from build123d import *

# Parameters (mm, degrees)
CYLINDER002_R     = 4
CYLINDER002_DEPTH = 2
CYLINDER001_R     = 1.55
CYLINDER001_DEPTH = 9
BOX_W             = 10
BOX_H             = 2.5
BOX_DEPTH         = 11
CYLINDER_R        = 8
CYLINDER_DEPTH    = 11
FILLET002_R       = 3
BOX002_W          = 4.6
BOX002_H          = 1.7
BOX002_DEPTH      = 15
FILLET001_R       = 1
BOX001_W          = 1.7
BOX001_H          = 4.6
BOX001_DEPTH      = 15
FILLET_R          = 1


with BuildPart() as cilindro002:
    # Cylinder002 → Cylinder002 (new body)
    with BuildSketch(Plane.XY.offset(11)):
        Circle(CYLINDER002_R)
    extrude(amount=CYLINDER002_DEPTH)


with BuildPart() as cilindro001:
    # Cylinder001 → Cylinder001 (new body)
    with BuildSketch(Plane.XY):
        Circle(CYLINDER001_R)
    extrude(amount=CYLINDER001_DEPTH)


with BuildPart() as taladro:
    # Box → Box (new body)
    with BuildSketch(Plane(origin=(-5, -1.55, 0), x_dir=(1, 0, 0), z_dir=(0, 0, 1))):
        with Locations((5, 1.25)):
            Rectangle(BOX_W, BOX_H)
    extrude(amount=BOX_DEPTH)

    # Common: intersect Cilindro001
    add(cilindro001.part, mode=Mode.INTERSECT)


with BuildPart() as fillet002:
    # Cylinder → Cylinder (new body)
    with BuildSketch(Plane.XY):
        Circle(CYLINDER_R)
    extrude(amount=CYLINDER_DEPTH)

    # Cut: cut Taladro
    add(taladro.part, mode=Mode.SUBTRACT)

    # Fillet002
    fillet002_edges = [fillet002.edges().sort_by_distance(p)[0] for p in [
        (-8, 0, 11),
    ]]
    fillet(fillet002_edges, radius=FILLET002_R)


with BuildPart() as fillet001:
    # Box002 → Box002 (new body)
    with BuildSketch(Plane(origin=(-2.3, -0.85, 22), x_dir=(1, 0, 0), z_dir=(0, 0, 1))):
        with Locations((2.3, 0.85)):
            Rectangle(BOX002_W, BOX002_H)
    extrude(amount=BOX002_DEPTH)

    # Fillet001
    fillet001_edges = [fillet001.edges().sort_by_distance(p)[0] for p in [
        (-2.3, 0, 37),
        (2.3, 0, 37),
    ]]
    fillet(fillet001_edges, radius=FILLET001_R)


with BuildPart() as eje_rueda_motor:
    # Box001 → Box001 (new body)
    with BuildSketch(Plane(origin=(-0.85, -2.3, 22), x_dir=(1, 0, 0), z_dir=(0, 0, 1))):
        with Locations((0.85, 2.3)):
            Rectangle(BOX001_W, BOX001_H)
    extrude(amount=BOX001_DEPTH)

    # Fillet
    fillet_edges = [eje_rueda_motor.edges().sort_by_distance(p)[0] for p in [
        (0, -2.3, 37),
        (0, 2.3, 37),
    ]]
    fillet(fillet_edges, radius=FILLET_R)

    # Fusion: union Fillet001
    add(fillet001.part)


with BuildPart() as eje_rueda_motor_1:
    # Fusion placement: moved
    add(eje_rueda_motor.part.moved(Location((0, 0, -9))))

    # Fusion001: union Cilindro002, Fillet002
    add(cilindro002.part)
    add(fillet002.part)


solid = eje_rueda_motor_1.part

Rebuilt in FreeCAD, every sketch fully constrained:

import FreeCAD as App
import Part
import Sketcher
from FreeCAD import Vector
Q = App.Units.Quantity


def edges_at(feature, points):
    """Names of the edges that pass closest to the given points."""
    edges = feature.Shape.Edges
    near = lambda p: min(range(len(edges)), key=lambda i: edges[i].distToShape(Part.Vertex(*p))[0])
    return sorted({f"Edge{near(p) + 1}" for p in points})

doc = App.newDocument("Part")
body = doc.addObject("PartDesign::Body", "Body")

# Sketch on XY plane
sketch1 = body.newObject("Sketcher::SketchObject", "Sketch")
sketch1.AttachmentSupport = (doc.getObject("XY_Plane"), [""])
sketch1.MapMode = "FlatFace"
sketch1.AttachmentOffset = App.Placement(Vector(0, 0, 11), App.Rotation())
sketch1.addGeometry(Part.Circle(Vector(0, 0, 0), Vector(0, 0, 1), 4), False)
sketch1.addConstraint(Sketcher.Constraint("Coincident", 0, 3, -1, 1))
sketch1.addConstraint(Sketcher.Constraint("Diameter", 0, Q("8 mm")))
pad1 = body.newObject("PartDesign::Pad", "Pad")
pad1.Profile = sketch1
pad1.Length = 2
body2 = doc.addObject("PartDesign::Body", "Body001")

# Sketch on XY plane
sketch2 = body2.newObject("Sketcher::SketchObject", "Sketch001")
sketch2.AttachmentSupport = (doc.getObject("XY_Plane001"), [""])
sketch2.MapMode = "FlatFace"
sketch2.addGeometry(Part.Circle(Vector(0, 0, 0), Vector(0, 0, 1), 1.6), False)
sketch2.addConstraint(Sketcher.Constraint("Coincident", 0, 3, -1, 1))
sketch2.addConstraint(Sketcher.Constraint("Diameter", 0, Q("3.1 mm")))
pad2 = body2.newObject("PartDesign::Pad", "Pad001")
pad2.Profile = sketch2
pad2.Length = 9
body3 = doc.addObject("PartDesign::Body", "Body002")

# Sketch on XY plane
sketch3 = body3.newObject("Sketcher::SketchObject", "Sketch002")
sketch3.AttachmentSupport = (doc.getObject("XY_Plane002"), [""])
sketch3.MapMode = "FlatFace"
sketch3.addGeometry(Part.LineSegment(Vector(-5, 0.9, 0), Vector(-5, -1.6, 0)), False)
sketch3.addGeometry(Part.LineSegment(Vector(-5, -1.6, 0), Vector(5, -1.6, 0)), False)
sketch3.addGeometry(Part.LineSegment(Vector(5, -1.6, 0), Vector(5, 0.9, 0)), False)
sketch3.addGeometry(Part.LineSegment(Vector(5, 0.9, 0), Vector(-5, 0.9, 0)), False)
sketch3.addConstraint(Sketcher.Constraint("Coincident", 0, 2, 1, 1))
sketch3.addConstraint(Sketcher.Constraint("Coincident", 1, 2, 2, 1))
sketch3.addConstraint(Sketcher.Constraint("Coincident", 2, 2, 3, 1))
sketch3.addConstraint(Sketcher.Constraint("Coincident", 3, 2, 0, 1))
sketch3.addConstraint(Sketcher.Constraint("Vertical", 0))
sketch3.addConstraint(Sketcher.Constraint("Horizontal", 1))
sketch3.addConstraint(Sketcher.Constraint("Vertical", 2))
sketch3.addConstraint(Sketcher.Constraint("Horizontal", 3))
sketch3.addConstraint(Sketcher.Constraint("DistanceX", 1, 1, 1, 2, Q("10 mm")))
sketch3.addConstraint(Sketcher.Constraint("DistanceY", 0, 2, 0, 1, Q("2.5 mm")))
sketch3.addConstraint(Sketcher.Constraint("DistanceX", 0, 2, -1, 1, Q("5 mm")))
sketch3.addConstraint(Sketcher.Constraint("DistanceY", 0, 2, -1, 1, Q("1.55 mm")))
pad3 = body3.newObject("PartDesign::Pad", "Pad002")
pad3.Profile = sketch3
pad3.Length = 11
doc.recompute()

boolean = body3.newObject("PartDesign::Boolean", "Boolean")
boolean.Type = "Common"
boolean.addObjects([body2])
body4 = doc.addObject("PartDesign::Body", "Body003")

# Sketch on XY plane
sketch4 = body4.newObject("Sketcher::SketchObject", "Sketch003")
sketch4.AttachmentSupport = (doc.getObject("XY_Plane003"), [""])
sketch4.MapMode = "FlatFace"
sketch4.addGeometry(Part.Circle(Vector(0, 0, 0), Vector(0, 0, 1), 8), False)
sketch4.addConstraint(Sketcher.Constraint("Coincident", 0, 3, -1, 1))
sketch4.addConstraint(Sketcher.Constraint("Diameter", 0, Q("16 mm")))
pad4 = body4.newObject("PartDesign::Pad", "Pad003")
pad4.Profile = sketch4
pad4.Length = 11
doc.recompute()

boolean2 = body4.newObject("PartDesign::Boolean", "Boolean001")
boolean2.Type = "Cut"
boolean2.addObjects([body3])
doc.recompute()

fillet = body4.newObject("PartDesign::Fillet", "Fillet")
fillet.Base = (boolean2, edges_at(boolean2, [(-8, 0, 11)]))
fillet.Radius = 3
body5 = doc.addObject("PartDesign::Body", "Body004")

# Sketch on XY plane
sketch5 = body5.newObject("Sketcher::SketchObject", "Sketch004")
sketch5.AttachmentSupport = (doc.getObject("XY_Plane004"), [""])
sketch5.MapMode = "FlatFace"
sketch5.AttachmentOffset = App.Placement(Vector(0, 0, 22), App.Rotation())
sketch5.addGeometry(Part.LineSegment(Vector(-2.3, 0.8, 0), Vector(-2.3, -0.8, 0)), False)
sketch5.addGeometry(Part.LineSegment(Vector(-2.3, -0.8, 0), Vector(2.3, -0.8, 0)), False)
sketch5.addGeometry(Part.LineSegment(Vector(2.3, -0.8, 0), Vector(2.3, 0.8, 0)), False)
sketch5.addGeometry(Part.LineSegment(Vector(2.3, 0.8, 0), Vector(-2.3, 0.8, 0)), False)
sketch5.addConstraint(Sketcher.Constraint("Coincident", 0, 2, 1, 1))
sketch5.addConstraint(Sketcher.Constraint("Coincident", 1, 2, 2, 1))
sketch5.addConstraint(Sketcher.Constraint("Coincident", 2, 2, 3, 1))
sketch5.addConstraint(Sketcher.Constraint("Coincident", 3, 2, 0, 1))
sketch5.addConstraint(Sketcher.Constraint("Vertical", 0))
sketch5.addConstraint(Sketcher.Constraint("Horizontal", 1))
sketch5.addConstraint(Sketcher.Constraint("Vertical", 2))
sketch5.addConstraint(Sketcher.Constraint("Horizontal", 3))
sketch5.addConstraint(Sketcher.Constraint("Symmetric", 0, 2, 2, 2, -1, 1))
sketch5.addConstraint(Sketcher.Constraint("DistanceX", 1, 1, 1, 2, Q("4.6 mm")))
sketch5.addConstraint(Sketcher.Constraint("DistanceY", 0, 2, 0, 1, Q("1.7 mm")))
pad5 = body5.newObject("PartDesign::Pad", "Pad004")
pad5.Profile = sketch5
pad5.Length = 15
doc.recompute()

fillet2 = body5.newObject("PartDesign::Fillet", "Fillet001")
fillet2.Base = (pad5, edges_at(pad5, [(-2.3, 0, 37), (2.3, 0, 37)]))
fillet2.Radius = 1
body6 = doc.addObject("PartDesign::Body", "Body005")

# Sketch on XY plane
sketch6 = body6.newObject("Sketcher::SketchObject", "Sketch005")
sketch6.AttachmentSupport = (doc.getObject("XY_Plane005"), [""])
sketch6.MapMode = "FlatFace"
sketch6.AttachmentOffset = App.Placement(Vector(0, 0, 22), App.Rotation())
sketch6.addGeometry(Part.LineSegment(Vector(-0.8, 2.3, 0), Vector(-0.8, -2.3, 0)), False)
sketch6.addGeometry(Part.LineSegment(Vector(-0.8, -2.3, 0), Vector(0.8, -2.3, 0)), False)
sketch6.addGeometry(Part.LineSegment(Vector(0.8, -2.3, 0), Vector(0.8, 2.3, 0)), False)
sketch6.addGeometry(Part.LineSegment(Vector(0.8, 2.3, 0), Vector(-0.8, 2.3, 0)), False)
sketch6.addConstraint(Sketcher.Constraint("Coincident", 0, 2, 1, 1))
sketch6.addConstraint(Sketcher.Constraint("Coincident", 1, 2, 2, 1))
sketch6.addConstraint(Sketcher.Constraint("Coincident", 2, 2, 3, 1))
sketch6.addConstraint(Sketcher.Constraint("Coincident", 3, 2, 0, 1))
sketch6.addConstraint(Sketcher.Constraint("Vertical", 0))
sketch6.addConstraint(Sketcher.Constraint("Horizontal", 1))
sketch6.addConstraint(Sketcher.Constraint("Vertical", 2))
sketch6.addConstraint(Sketcher.Constraint("Horizontal", 3))
sketch6.addConstraint(Sketcher.Constraint("Symmetric", 0, 2, 2, 2, -1, 1))
sketch6.addConstraint(Sketcher.Constraint("DistanceX", 1, 1, 1, 2, Q("1.7 mm")))
sketch6.addConstraint(Sketcher.Constraint("DistanceY", 0, 2, 0, 1, Q("4.6 mm")))
pad6 = body6.newObject("PartDesign::Pad", "Pad005")
pad6.Profile = sketch6
pad6.Length = 15
doc.recompute()

fillet3 = body6.newObject("PartDesign::Fillet", "Fillet002")
fillet3.Base = (pad6, edges_at(pad6, [(0, -2.3, 37), (0, 2.3, 37)]))
fillet3.Radius = 1
doc.recompute()

boolean3 = body6.newObject("PartDesign::Boolean", "Boolean002")
boolean3.Type = "Fuse"
boolean3.addObjects([body5])
body7 = doc.addObject("PartDesign::Body", "Body006")
doc.recompute()

body6.Placement = App.Placement(Vector(0, 0, -9), App.Rotation(Vector(0, 0, 1), 0))
boolean4 = body7.newObject("PartDesign::Boolean", "Boolean003")
boolean4.Type = "Fuse"
boolean4.addObjects([body6])
doc.recompute()

boolean5 = body7.newObject("PartDesign::Boolean", "Boolean004")
boolean5.Type = "Fuse"
boolean5.addObjects([body])
doc.recompute()

boolean6 = body7.newObject("PartDesign::Boolean", "Boolean005")
boolean6.Type = "Fuse"
boolean6.addObjects([body4])

doc.recompute()
